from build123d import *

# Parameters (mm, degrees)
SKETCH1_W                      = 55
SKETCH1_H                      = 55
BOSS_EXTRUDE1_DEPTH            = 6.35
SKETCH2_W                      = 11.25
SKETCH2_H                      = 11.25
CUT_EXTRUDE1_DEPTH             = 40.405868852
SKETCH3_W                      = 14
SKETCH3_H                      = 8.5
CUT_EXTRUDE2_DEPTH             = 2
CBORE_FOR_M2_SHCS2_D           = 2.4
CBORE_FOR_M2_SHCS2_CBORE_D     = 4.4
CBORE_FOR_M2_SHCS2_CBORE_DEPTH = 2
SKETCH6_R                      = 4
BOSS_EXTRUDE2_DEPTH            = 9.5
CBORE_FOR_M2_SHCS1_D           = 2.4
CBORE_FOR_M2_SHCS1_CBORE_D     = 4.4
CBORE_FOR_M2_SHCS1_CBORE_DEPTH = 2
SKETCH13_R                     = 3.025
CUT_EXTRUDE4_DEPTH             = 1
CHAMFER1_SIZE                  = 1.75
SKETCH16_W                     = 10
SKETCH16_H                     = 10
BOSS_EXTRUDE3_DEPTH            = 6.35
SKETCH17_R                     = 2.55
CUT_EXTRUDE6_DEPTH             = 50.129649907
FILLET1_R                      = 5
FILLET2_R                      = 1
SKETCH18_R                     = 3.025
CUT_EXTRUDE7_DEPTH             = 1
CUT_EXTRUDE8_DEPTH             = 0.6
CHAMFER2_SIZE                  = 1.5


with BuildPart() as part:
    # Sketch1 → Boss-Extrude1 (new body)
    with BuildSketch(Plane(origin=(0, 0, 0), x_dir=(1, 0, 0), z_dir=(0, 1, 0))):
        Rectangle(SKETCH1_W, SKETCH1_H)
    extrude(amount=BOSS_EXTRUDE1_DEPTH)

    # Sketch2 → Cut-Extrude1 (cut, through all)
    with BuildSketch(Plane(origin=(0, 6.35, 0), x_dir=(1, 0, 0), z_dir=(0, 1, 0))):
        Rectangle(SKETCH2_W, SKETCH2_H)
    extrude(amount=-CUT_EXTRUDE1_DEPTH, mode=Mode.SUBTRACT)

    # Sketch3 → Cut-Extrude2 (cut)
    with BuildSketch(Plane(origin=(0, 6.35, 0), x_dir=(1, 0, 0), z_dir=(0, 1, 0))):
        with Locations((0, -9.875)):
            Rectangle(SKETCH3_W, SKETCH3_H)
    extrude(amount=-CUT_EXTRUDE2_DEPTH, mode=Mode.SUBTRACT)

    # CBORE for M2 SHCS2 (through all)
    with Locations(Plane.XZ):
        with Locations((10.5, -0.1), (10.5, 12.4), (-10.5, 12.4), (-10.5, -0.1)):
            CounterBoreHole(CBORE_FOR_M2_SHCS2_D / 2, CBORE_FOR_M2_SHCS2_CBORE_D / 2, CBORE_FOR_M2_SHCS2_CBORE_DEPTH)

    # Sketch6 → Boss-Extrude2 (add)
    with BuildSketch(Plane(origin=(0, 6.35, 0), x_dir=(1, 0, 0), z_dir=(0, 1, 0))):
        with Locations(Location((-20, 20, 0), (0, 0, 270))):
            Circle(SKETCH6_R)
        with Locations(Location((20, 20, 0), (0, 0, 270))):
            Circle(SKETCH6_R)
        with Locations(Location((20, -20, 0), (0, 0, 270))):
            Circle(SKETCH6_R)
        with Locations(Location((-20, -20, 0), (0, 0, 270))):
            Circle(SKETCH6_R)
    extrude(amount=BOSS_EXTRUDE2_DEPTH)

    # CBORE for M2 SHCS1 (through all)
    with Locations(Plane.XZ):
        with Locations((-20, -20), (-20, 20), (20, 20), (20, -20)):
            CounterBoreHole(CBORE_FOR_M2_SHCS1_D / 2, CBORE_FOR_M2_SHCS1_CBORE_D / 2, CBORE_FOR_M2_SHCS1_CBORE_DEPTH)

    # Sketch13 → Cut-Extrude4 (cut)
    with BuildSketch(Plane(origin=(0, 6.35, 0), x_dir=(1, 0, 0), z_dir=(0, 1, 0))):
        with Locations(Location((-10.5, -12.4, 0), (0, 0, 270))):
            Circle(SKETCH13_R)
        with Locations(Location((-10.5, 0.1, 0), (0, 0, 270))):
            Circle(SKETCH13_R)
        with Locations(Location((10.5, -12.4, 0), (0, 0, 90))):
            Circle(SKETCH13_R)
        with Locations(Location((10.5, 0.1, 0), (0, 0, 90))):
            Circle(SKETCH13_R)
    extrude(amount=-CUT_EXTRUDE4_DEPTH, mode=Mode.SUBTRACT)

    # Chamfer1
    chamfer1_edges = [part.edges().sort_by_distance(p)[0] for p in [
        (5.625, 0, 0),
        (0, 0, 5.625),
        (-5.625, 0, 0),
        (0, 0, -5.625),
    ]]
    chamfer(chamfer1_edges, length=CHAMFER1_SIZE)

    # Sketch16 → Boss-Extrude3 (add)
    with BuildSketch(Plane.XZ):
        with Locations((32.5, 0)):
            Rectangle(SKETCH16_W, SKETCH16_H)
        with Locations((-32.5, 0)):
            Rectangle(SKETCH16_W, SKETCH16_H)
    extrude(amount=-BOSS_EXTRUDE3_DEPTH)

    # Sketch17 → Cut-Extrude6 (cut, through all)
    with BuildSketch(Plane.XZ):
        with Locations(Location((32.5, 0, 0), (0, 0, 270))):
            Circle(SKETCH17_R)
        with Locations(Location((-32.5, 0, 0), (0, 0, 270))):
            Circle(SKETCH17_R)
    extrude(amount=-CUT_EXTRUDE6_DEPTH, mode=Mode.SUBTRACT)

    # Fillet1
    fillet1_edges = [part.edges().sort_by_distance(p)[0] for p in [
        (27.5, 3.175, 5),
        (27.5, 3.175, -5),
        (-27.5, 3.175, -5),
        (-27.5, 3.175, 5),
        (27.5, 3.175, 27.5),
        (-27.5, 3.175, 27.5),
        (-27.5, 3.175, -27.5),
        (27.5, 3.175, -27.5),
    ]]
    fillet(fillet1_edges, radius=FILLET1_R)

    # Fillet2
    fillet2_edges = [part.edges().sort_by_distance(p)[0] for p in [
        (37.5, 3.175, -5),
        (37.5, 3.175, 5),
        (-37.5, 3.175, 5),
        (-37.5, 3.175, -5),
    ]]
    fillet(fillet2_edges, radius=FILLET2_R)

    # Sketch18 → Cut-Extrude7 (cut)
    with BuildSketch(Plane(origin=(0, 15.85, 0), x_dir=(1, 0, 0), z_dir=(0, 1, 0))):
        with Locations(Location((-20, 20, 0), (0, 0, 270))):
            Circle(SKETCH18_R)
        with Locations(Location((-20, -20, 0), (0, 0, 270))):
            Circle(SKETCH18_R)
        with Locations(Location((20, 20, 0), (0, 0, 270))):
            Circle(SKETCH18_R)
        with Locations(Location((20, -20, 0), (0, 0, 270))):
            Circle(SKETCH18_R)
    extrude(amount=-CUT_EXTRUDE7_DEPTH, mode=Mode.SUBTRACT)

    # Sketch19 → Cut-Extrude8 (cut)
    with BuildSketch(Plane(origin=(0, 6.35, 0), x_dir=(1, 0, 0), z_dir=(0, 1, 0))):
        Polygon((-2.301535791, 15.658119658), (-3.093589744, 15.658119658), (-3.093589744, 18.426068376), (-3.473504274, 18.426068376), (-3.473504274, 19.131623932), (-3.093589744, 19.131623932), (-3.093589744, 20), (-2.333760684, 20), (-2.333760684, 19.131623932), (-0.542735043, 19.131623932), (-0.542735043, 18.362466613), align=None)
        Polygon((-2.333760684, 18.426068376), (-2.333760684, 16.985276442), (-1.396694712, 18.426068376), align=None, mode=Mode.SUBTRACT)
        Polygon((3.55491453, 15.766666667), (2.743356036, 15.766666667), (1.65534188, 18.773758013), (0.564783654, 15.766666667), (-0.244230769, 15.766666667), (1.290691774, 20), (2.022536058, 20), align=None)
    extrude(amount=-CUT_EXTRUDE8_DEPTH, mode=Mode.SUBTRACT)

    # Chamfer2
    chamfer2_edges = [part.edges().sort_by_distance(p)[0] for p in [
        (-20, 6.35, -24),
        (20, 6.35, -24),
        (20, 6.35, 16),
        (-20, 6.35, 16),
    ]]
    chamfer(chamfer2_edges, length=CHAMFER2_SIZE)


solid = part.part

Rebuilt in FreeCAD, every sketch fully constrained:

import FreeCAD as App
import Part
import Sketcher
from FreeCAD import Vector


def edges_at(feature, points):
    """Names of the edges that pass closest to the given points."""
    edges = feature.Shape.Edges
    near = lambda p: min(range(len(edges)), key=lambda i: edges[i].distToShape(Part.Vertex(*p))[0])
    return sorted({f"Edge{near(p) + 1}" for p in points})


def add_polygon(sketch, points):
    """Adds a closed chain of lines whose ends are joined by coincident constraints."""
    first, n = sketch.GeometryCount, len(points)
    for a, b in zip(points, points[1:] + points[:1]):
        sketch.addGeometry(Part.LineSegment(App.Vector(*a, 0), App.Vector(*b, 0)), False)
    for i in range(n):
        sketch.addConstraint(Sketcher.Constraint("Coincident", first + i, 2, first + (i + 1) % n, 1))

doc = App.newDocument("Part")
body = doc.addObject("PartDesign::Body", "Body")

# Sketch on XZ plane
sketch1 = body.newObject("Sketcher::SketchObject", "Sketch")
sketch1.AttachmentSupport = (doc.getObject("XZ_Plane"), [""])
sketch1.MapMode = "FlatFace"
add_polygon(sketch1, [(-28, -28), (-28, 28), (28, 28), (28, -28)])  # lines 0-3
sketch1.addConstraint([
    Sketcher.Constraint("Vertical", 0),
    Sketcher.Constraint("Horizontal", 1),
    Sketcher.Constraint("Vertical", 2),
    Sketcher.Constraint("Horizontal", 3),
    Sketcher.Constraint("Symmetric", 0, 2, 2, 2, -1, 1),
    Sketcher.Constraint("Equal", 3, 0),
    Sketcher.Constraint("DistanceX", 1, 1, 1, 2, 55.0),
])
pad1 = body.newObject("PartDesign::Pad", "Pad")
pad1.Profile = sketch1
pad1.Length = 6.35
pad1.Reversed = True

# Sketch on XZ plane
sketch2 = body.newObject("Sketcher::SketchObject", "Sketch001")
sketch2.AttachmentSupport = (doc.getObject("XZ_Plane"), [""])
sketch2.MapMode = "FlatFace"
sketch2.AttachmentOffset = App.Placement(Vector(0, 0, -6.35), App.Rotation())
add_polygon(sketch2, [(-6, -6), (-6, 6), (6, 6), (6, -6)])  # lines 0-3
sketch2.addConstraint([
    Sketcher.Constraint("Vertical", 0),
    Sketcher.Constraint("Horizontal", 1),
    Sketcher.Constraint("Vertical", 2),
    Sketcher.Constraint("Horizontal", 3),
    Sketcher.Constraint("Symmetric", 0, 2, 2, 2, -1, 1),
    Sketcher.Constraint("Equal", 3, 0),
    Sketcher.Constraint("DistanceX", 1, 1, 1, 2, 11.25),
])
pocket1 = body.newObject("PartDesign::Pocket", "Pocket")
pocket1.Profile = sketch2
pocket1.Type = "ThroughAll"
pocket1.Reversed = True

# Sketch on XZ plane
sketch3 = body.newObject("Sketcher::SketchObject", "Sketch002")
sketch3.AttachmentSupport = (doc.getObject("XZ_Plane"), [""])
sketch3.MapMode = "FlatFace"
sketch3.AttachmentOffset = App.Placement(Vector(0, 0, -6.35), App.Rotation())
add_polygon(sketch3, [(-7, 6), (-7, 14), (7, 14), (7, 6)])  # lines 0-3
sketch3.addConstraint([
    Sketcher.Constraint("Vertical", 0),
    Sketcher.Constraint("Horizontal", 1),
    Sketcher.Constraint("Vertical", 2),
    Sketcher.Constraint("Horizontal", 3),
    Sketcher.Constraint("DistanceX", 1, 1, 1, 2, 14.0),
    Sketcher.Constraint("DistanceY", 0, 1, 0, 2, 8.5),
    Sketcher.Constraint("DistanceX", 0, 2, -1, 1, 7.0),
    Sketcher.Constraint("DistanceY", -1, 1, 0, 2, 14.125),
])
pocket2 = body.newObject("PartDesign::Pocket", "Pocket001")
pocket2.Profile = sketch3
pocket2.Length = 2
pocket2.Reversed = True

# Sketch on XZ plane
sketch4 = body.newObject("Sketcher::SketchObject", "Sketch003")
sketch4.AttachmentSupport = (doc.getObject("XZ_Plane"), [""])
sketch4.MapMode = "FlatFace"
sketch4.addGeometry([
    Part.Circle(Vector(10.5, -0.1, 0), Vector(0, 0, 1), 1.2),
    Part.Circle(Vector(10.5, 12.4, 0), Vector(0, 0, 1), 1.2),
    Part.Circle(Vector(-10.5, 12.4, 0), Vector(0, 0, 1), 1.2),
    Part.Circle(Vector(-10.5, -0.1, 0), Vector(0, 0, 1), 1.2),
], False)
sketch4.addConstraint([
    Sketcher.Constraint("Equal", 0, 1),
    Sketcher.Constraint("Equal", 1, 2),
    Sketcher.Constraint("Equal", 2, 3),
    Sketcher.Constraint("Symmetric", 1, 3, 2, 3, -2),
    Sketcher.Constraint("Symmetric", 0, 3, 3, 3, -2),
    Sketcher.Constraint("Vertical", 0, 3, 1, 3),
    Sketcher.Constraint("Diameter", 0, 2.4),
    Sketcher.Constraint("DistanceX", 2, 3, 1, 3, 21.0),
    Sketcher.Constraint("DistanceY", 0, 3, -1, 1, 0.1),
    Sketcher.Constraint("DistanceY", -1, 1, 1, 3, 12.4),
])
doc.recompute()
hole = body.newObject("PartDesign::Hole", "Hole")
hole.Profile = sketch4
hole.ThreadType = "None"
hole.Diameter = 2.4
hole.DepthType = "ThroughAll"
hole.HoleCutType = "Counterbore"
hole.HoleCutDiameter = 4.4
hole.HoleCutDepth = 2

# Sketch on XZ plane
sketch5 = body.newObject("Sketcher::SketchObject", "Sketch004")
sketch5.AttachmentSupport = (doc.getObject("XZ_Plane"), [""])
sketch5.MapMode = "FlatFace"
sketch5.AttachmentOffset = App.Placement(Vector(0, 0, -6.35), App.Rotation())
sketch5.addGeometry([
    Part.Circle(Vector(-20, -20, 0), Vector(0, 0, 1), 4),
    Part.Circle(Vector(20, -20, 0), Vector(0, 0, 1), 4),
    Part.Circle(Vector(20, 20, 0), Vector(0, 0, 1), 4),
    Part.Circle(Vector(-20, 20, 0), Vector(0, 0, 1), 4),
], False)
sketch5.addConstraint([
    Sketcher.Constraint("Equal", 0, 1),
    Sketcher.Constraint("Equal", 1, 2),
    Sketcher.Constraint("Equal", 2, 3),
    Sketcher.Constraint("Symmetric", 0, 3, 2, 3, -1, 1),
    Sketcher.Constraint("Symmetric", 1, 3, 3, 3, -1, 1),
    Sketcher.Constraint("Symmetric", 0, 3, 1, 3, -2),
    Sketcher.Constraint("Diameter", 0, 8.0),
    Sketcher.Constraint("DistanceX", 0, 3, -1, 1, 20.0),
    Sketcher.Constraint("DistanceY", 0, 3, -1, 1, 20.0),
])
pad2 = body.newObject("PartDesign::Pad", "Pad001")
pad2.Profile = sketch5
pad2.Length = 9.5
pad2.Reversed = True

# Sketch on XZ plane
sketch6 = body.newObject("Sketcher::SketchObject", "Sketch005")
sketch6.AttachmentSupport = (doc.getObject("XZ_Plane"), [""])
sketch6.MapMode = "FlatFace"
sketch6.addGeometry([
    Part.Circle(Vector(-20, -20, 0), Vector(0, 0, 1), 1.2),
    Part.Circle(Vector(-20, 20, 0), Vector(0, 0, 1), 1.2),
    Part.Circle(Vector(20, 20, 0), Vector(0, 0, 1), 1.2),
    Part.Circle(Vector(20, -20, 0), Vector(0, 0, 1), 1.2),
], False)
sketch6.addConstraint([
    Sketcher.Constraint("Equal", 0, 1),
    Sketcher.Constraint("Equal", 1, 2),
    Sketcher.Constraint("Equal", 2, 3),
    Sketcher.Constraint("Symmetric", 0, 3, 2, 3, -1, 1),
    Sketcher.Constraint("Symmetric", 1, 3, 3, 3, -1, 1),
    Sketcher.Constraint("Symmetric", 1, 3, 2, 3, -2),
    Sketcher.Constraint("Diameter", 0, 2.4),
    Sketcher.Constraint("DistanceX", 0, 3, -1, 1, 20.0),
    Sketcher.Constraint("DistanceY", 0, 3, -1, 1, 20.0),
])
doc.recompute()
hole2 = body.newObject("PartDesign::Hole", "Hole001")
hole2.Profile = sketch6
hole2.ThreadType = "None"
hole2.Diameter = 2.4
hole2.DepthType = "ThroughAll"
hole2.HoleCutType = "Counterbore"
hole2.HoleCutDiameter = 4.4
hole2.HoleCutDepth = 2

# Sketch on XZ plane
sketch7 = body.newObject("Sketcher::SketchObject", "Sketch006")
sketch7.AttachmentSupport = (doc.getObject("XZ_Plane"), [""])
sketch7.MapMode = "FlatFace"
sketch7.AttachmentOffset = App.Placement(Vector(0, 0, -6.35), App.Rotation())
sketch7.addGeometry([
    Part.Circle(Vector(-10.5, 12.4, 0), Vector(0, 0, 1), 3),
    Part.Circle(Vector(-10.5, -0.1, 0), Vector(0, 0, 1), 3),
    Part.Circle(Vector(10.5, 12.4, 0), Vector(0, 0, 1), 3),
    Part.Circle(Vector(10.5, -0.1, 0), Vector(0, 0, 1), 3),
], False)
sketch7.addConstraint([
    Sketcher.Constraint("Equal", 0, 1),
    Sketcher.Constraint("Equal", 1, 2),
    Sketcher.Constraint("Equal", 2, 3),
    Sketcher.Constraint("Symmetric", 0, 3, 2, 3, -2),
    Sketcher.Constraint("Symmetric", 1, 3, 3, 3, -2),
    Sketcher.Constraint("Vertical", 0, 3, 1, 3),
    Sketcher.Constraint("Diameter", 0, 6.05),
    Sketcher.Constraint("DistanceX", 0, 3, 2, 3, 21.0),
    Sketcher.Constraint("DistanceY", -1, 1, 0, 3, 12.4),
    Sketcher.Constraint("DistanceY", 1, 3, -1, 1, 0.1),
])
pocket3 = body.newObject("PartDesign::Pocket", "Pocket002")
pocket3.Profile = sketch7
pocket3.Length = 1
pocket3.Reversed = True
doc.recompute()

chamfer = body.newObject("PartDesign::Chamfer", "Chamfer")
chamfer.Base = (pocket3, edges_at(pocket3, [
    (5.625, 0, 0),
    (0, 0, 5.625),
    (-5.625, 0, 0),
    (0, 0, -5.625),
]))
chamfer.Size = 1.75

# Sketch on XZ plane
sketch8 = body.newObject("Sketcher::SketchObject", "Sketch007")
sketch8.AttachmentSupport = (doc.getObject("XZ_Plane"), [""])
sketch8.MapMode = "FlatFace"
add_polygon(sketch8, [(28, 5), (28, -5), (38, -5), (38, 5)])  # lines 0-3
add_polygon(sketch8, [(-38, 5), (-38, -5), (-28, -5), (-28, 5)])  # lines 4-7
sketch8.addConstraint([
    Sketcher.Constraint("Vertical", 0),
    Sketcher.Constraint("Horizontal", 1),
    Sketcher.Constraint("Vertical", 2),
    Sketcher.Constraint("Horizontal", 3),
    Sketcher.Constraint("Vertical", 4),
    Sketcher.Constraint("Horizontal", 5),
    Sketcher.Constraint("Vertical", 6),
    Sketcher.Constraint("Horizontal", 7),
    Sketcher.Constraint("Symmetric", 2, 2, 4, 2, -1, 1),
    Sketcher.Constraint("Symmetric", 0, 2, 6, 2, -1, 1),
    Sketcher.Constraint("Horizontal", 1, 2, 4, 2),
    Sketcher.Constraint("Equal", 7, 0),
    Sketcher.Constraint("DistanceX", 1, 1, 1, 2, 10.0),
    Sketcher.Constraint("DistanceX", 4, 2, 0, 2, 65.0),
])
pad3 = body.newObject("PartDesign::Pad", "Pad002")
pad3.Profile = sketch8
pad3.Length = 6.35
pad3.Reversed = True

# Sketch on XZ plane
sketch9 = body.newObject("Sketcher::SketchObject", "Sketch008")
sketch9.AttachmentSupport = (doc.getObject("XZ_Plane"), [""])
sketch9.MapMode = "FlatFace"
sketch9.addGeometry([
    Part.Circle(Vector(32.5, 0, 0), Vector(0, 0, 1), 2.5),
    Part.Circle(Vector(-32.5, 0, 0), Vector(0, 0, 1), 2.5),
], False)
sketch9.addConstraint([
    Sketcher.Constraint("Equal", 0, 1),
    Sketcher.Constraint("Symmetric", 0, 3, 1, 3, -1, 1),
    Sketcher.Constraint("PointOnObject", 0, 3, -1),
    Sketcher.Constraint("Diameter", 0, 5.1),
    Sketcher.Constraint("DistanceX", 1, 3, 0, 3, 65.0),
])
pocket4 = body.newObject("PartDesign::Pocket", "Pocket003")
pocket4.Profile = sketch9
pocket4.Type = "ThroughAll"
doc.recompute()

fillet = body.newObject("PartDesign::Fillet", "Fillet")
fillet.Base = (pocket4, edges_at(pocket4, [
    (27.5, 3.175, 5),
    (27.5, 3.175, -5),
    (-27.5, 3.175, -5),
    (-27.5, 3.175, 5),
    (27.5, 3.175, 27.5),
    (-27.5, 3.175, 27.5),
    (-27.5, 3.175, -27.5),
    (27.5, 3.175, -27.5),
]))
fillet.Radius = 5
doc.recompute()

fillet2 = body.newObject("PartDesign::Fillet", "Fillet001")
fillet2.Base = (fillet, edges_at(fillet, [
    (37.5, 3.175, -5),
    (37.5, 3.175, 5),
    (-37.5, 3.175, 5),
    (-37.5, 3.175, -5),
]))
fillet2.Radius = 1

# Sketch on XZ plane
sketch10 = body.newObject("Sketcher::SketchObject", "Sketch009")
sketch10.AttachmentSupport = (doc.getObject("XZ_Plane"), [""])
sketch10.MapMode = "FlatFace"
sketch10.AttachmentOffset = App.Placement(Vector(0, 0, -15.85), App.Rotation())
sketch10.addGeometry([
    Part.Circle(Vector(-20, -20, 0), Vector(0, 0, 1), 3),
    Part.Circle(Vector(-20, 20, 0), Vector(0, 0, 1), 3),
    Part.Circle(Vector(20, -20, 0), Vector(0, 0, 1), 3),
    Part.Circle(Vector(20, 20, 0), Vector(0, 0, 1), 3),
], False)
sketch10.addConstraint([
    Sketcher.Constraint("Equal", 0, 1),
    Sketcher.Constraint("Equal", 1, 2),
    Sketcher.Constraint("Equal", 2, 3),
    Sketcher.Constraint("Symmetric", 1, 3, 2, 3, -1, 1),
    Sketcher.Constraint("Symmetric", 0, 3, 3, 3, -1, 1),
    Sketcher.Constraint("Symmetric", 0, 3, 2, 3, -2),
    Sketcher.Constraint("Diameter", 0, 6.05),
    Sketcher.Constraint("DistanceX", 0, 3, -1, 1, 20.0),
    Sketcher.Constraint("DistanceY", 0, 3, -1, 1, 20.0),
])
pocket5 = body.newObject("PartDesign::Pocket", "Pocket004")
pocket5.Profile = sketch10
pocket5.Length = 1
pocket5.Reversed = True

# Sketch on XZ plane
sketch11 = body.newObject("Sketcher::SketchObject", "Sketch010")
sketch11.AttachmentSupport = (doc.getObject("XZ_Plane"), [""])
sketch11.MapMode = "FlatFace"
sketch11.AttachmentOffset = App.Placement(Vector(0, 0, -6.35), App.Rotation())
add_polygon(sketch11, [(-3.09, -15.66), (-2.3, -15.66), (-0.54, -18.36), (-0.54, -19.13), (-2.33, -19.13), (-2.33, -20), (-3.09, -20), (-3.09, -19.13), (-3.47, -19.13), (-3.47, -18.43), (-3.09, -18.43)])  # lines 0-10
add_polygon(sketch11, [(-2.33, -18.43), (-1.4, -18.43), (-2.33, -16.99)])  # lines 11-13
add_polygon(sketch11, [(2.74, -15.77), (3.55, -15.77), (2.02, -20), (1.29, -20), (-0.24, -15.77), (0.56, -15.77), (1.66, -18.77)])  # lines 14-20
sketch11.addConstraint([
    Sketcher.Constraint("Horizontal", 0),
    Sketcher.Constraint("Vertical", 2),
    Sketcher.Constraint("Horizontal", 3),
    Sketcher.Constraint("Vertical", 4),
    Sketcher.Constraint("Horizontal", 5),
    Sketcher.Constraint("Vertical", 6),
    Sketcher.Constraint("Horizontal", 7),
    Sketcher.Constraint("Vertical", 8),
    Sketcher.Constraint("Horizontal", 9),
    Sketcher.Constraint("Vertical", 10),
    Sketcher.Constraint("Horizontal", 11),
    Sketcher.Constraint("Vertical", 13),
    Sketcher.Constraint("Horizontal", 14),
    Sketcher.Constraint("Horizontal", 16),
    Sketcher.Constraint("Horizontal", 18),
    Sketcher.Constraint("Horizontal", 3, 2, 6, 2),
    Sketcher.Constraint("Horizontal", 9, 2, 11, 2),
    Sketcher.Constraint("Horizontal", 5, 2, 15, 2),
    Sketcher.Constraint("Horizontal", 14, 2, 17, 2),
    Sketcher.Constraint("Vertical", 6, 2, 9, 2),
    Sketcher.Constraint("Vertical", 4, 2, 12, 2),
    Sketcher.Constraint("DistanceY", 4, 2, -1, 1, 20.0),
    Sketcher.Constraint("DistanceX", 5, 2, 5, 1, 0.759829),
    Sketcher.Constraint("DistanceX", 14, 1, 14, 2, 0.811558),
    Sketcher.Constraint("DistanceY", 10, 1, 10, 2, 2.767949),
    Sketcher.Constraint("DistanceY", 13, 2, 13, 1, 1.440792),
    Sketcher.Constraint("DistanceX", 0, 2, 1, 2, 1.758801),
    Sketcher.Constraint("DistanceY", 11, 2, 1, 2, 0.063602),
    Sketcher.Constraint("DistanceY", 1, 2, 14, 2, 2.5958),
    Sketcher.Constraint("Distance", 17, 4.50301),
    Sketcher.Constraint("Distance", 20, 3.19787),
    Sketcher.Constraint("DistanceX", 0, 1, 0, 2, 0.792054),
    Sketcher.Constraint("DistanceX", 7, 2, 7, 1, 0.379915),
    Sketcher.Constraint("DistanceX", 11, 1, 11, 2, 0.937066),
    Sketcher.Constraint("DistanceX", 16, 2, 16, 1, 0.731844),
    Sketcher.Constraint("DistanceX", 18, 1, 18, 2, 0.809014),
    Sketcher.Constraint("DistanceY", 2, 2, 2, 1, 0.769157),
    Sketcher.Constraint("DistanceY", 4, 2, 4, 1, 0.868376),
    Sketcher.Constraint("DistanceX", 3, 2, -1, 1, 2.333761),
    Sketcher.Constraint("DistanceX", -1, 1, 16, 2, 1.290692),
    Sketcher.Constraint("DistanceX", -1, 1, 19, 2, 1.655342),
    Sketcher.Constraint("DistanceY", 19, 2, -1, 1, 18.773758),
])
pocket6 = body.newObject("PartDesign::Pocket", "Pocket005")
pocket6.Profile = sketch11
pocket6.Length = 0.6
pocket6.Reversed = True
doc.recompute()

chamfer2 = body.newObject("PartDesign::Chamfer", "Chamfer001")
chamfer2.Base = (pocket6, edges_at(pocket6, [
    (-20, 6.35, -24),
    (20, 6.35, -24),
    (20, 6.35, 16),
    (-20, 6.35, 16),
]))
chamfer2.Size = 1.5

doc.recompute()
